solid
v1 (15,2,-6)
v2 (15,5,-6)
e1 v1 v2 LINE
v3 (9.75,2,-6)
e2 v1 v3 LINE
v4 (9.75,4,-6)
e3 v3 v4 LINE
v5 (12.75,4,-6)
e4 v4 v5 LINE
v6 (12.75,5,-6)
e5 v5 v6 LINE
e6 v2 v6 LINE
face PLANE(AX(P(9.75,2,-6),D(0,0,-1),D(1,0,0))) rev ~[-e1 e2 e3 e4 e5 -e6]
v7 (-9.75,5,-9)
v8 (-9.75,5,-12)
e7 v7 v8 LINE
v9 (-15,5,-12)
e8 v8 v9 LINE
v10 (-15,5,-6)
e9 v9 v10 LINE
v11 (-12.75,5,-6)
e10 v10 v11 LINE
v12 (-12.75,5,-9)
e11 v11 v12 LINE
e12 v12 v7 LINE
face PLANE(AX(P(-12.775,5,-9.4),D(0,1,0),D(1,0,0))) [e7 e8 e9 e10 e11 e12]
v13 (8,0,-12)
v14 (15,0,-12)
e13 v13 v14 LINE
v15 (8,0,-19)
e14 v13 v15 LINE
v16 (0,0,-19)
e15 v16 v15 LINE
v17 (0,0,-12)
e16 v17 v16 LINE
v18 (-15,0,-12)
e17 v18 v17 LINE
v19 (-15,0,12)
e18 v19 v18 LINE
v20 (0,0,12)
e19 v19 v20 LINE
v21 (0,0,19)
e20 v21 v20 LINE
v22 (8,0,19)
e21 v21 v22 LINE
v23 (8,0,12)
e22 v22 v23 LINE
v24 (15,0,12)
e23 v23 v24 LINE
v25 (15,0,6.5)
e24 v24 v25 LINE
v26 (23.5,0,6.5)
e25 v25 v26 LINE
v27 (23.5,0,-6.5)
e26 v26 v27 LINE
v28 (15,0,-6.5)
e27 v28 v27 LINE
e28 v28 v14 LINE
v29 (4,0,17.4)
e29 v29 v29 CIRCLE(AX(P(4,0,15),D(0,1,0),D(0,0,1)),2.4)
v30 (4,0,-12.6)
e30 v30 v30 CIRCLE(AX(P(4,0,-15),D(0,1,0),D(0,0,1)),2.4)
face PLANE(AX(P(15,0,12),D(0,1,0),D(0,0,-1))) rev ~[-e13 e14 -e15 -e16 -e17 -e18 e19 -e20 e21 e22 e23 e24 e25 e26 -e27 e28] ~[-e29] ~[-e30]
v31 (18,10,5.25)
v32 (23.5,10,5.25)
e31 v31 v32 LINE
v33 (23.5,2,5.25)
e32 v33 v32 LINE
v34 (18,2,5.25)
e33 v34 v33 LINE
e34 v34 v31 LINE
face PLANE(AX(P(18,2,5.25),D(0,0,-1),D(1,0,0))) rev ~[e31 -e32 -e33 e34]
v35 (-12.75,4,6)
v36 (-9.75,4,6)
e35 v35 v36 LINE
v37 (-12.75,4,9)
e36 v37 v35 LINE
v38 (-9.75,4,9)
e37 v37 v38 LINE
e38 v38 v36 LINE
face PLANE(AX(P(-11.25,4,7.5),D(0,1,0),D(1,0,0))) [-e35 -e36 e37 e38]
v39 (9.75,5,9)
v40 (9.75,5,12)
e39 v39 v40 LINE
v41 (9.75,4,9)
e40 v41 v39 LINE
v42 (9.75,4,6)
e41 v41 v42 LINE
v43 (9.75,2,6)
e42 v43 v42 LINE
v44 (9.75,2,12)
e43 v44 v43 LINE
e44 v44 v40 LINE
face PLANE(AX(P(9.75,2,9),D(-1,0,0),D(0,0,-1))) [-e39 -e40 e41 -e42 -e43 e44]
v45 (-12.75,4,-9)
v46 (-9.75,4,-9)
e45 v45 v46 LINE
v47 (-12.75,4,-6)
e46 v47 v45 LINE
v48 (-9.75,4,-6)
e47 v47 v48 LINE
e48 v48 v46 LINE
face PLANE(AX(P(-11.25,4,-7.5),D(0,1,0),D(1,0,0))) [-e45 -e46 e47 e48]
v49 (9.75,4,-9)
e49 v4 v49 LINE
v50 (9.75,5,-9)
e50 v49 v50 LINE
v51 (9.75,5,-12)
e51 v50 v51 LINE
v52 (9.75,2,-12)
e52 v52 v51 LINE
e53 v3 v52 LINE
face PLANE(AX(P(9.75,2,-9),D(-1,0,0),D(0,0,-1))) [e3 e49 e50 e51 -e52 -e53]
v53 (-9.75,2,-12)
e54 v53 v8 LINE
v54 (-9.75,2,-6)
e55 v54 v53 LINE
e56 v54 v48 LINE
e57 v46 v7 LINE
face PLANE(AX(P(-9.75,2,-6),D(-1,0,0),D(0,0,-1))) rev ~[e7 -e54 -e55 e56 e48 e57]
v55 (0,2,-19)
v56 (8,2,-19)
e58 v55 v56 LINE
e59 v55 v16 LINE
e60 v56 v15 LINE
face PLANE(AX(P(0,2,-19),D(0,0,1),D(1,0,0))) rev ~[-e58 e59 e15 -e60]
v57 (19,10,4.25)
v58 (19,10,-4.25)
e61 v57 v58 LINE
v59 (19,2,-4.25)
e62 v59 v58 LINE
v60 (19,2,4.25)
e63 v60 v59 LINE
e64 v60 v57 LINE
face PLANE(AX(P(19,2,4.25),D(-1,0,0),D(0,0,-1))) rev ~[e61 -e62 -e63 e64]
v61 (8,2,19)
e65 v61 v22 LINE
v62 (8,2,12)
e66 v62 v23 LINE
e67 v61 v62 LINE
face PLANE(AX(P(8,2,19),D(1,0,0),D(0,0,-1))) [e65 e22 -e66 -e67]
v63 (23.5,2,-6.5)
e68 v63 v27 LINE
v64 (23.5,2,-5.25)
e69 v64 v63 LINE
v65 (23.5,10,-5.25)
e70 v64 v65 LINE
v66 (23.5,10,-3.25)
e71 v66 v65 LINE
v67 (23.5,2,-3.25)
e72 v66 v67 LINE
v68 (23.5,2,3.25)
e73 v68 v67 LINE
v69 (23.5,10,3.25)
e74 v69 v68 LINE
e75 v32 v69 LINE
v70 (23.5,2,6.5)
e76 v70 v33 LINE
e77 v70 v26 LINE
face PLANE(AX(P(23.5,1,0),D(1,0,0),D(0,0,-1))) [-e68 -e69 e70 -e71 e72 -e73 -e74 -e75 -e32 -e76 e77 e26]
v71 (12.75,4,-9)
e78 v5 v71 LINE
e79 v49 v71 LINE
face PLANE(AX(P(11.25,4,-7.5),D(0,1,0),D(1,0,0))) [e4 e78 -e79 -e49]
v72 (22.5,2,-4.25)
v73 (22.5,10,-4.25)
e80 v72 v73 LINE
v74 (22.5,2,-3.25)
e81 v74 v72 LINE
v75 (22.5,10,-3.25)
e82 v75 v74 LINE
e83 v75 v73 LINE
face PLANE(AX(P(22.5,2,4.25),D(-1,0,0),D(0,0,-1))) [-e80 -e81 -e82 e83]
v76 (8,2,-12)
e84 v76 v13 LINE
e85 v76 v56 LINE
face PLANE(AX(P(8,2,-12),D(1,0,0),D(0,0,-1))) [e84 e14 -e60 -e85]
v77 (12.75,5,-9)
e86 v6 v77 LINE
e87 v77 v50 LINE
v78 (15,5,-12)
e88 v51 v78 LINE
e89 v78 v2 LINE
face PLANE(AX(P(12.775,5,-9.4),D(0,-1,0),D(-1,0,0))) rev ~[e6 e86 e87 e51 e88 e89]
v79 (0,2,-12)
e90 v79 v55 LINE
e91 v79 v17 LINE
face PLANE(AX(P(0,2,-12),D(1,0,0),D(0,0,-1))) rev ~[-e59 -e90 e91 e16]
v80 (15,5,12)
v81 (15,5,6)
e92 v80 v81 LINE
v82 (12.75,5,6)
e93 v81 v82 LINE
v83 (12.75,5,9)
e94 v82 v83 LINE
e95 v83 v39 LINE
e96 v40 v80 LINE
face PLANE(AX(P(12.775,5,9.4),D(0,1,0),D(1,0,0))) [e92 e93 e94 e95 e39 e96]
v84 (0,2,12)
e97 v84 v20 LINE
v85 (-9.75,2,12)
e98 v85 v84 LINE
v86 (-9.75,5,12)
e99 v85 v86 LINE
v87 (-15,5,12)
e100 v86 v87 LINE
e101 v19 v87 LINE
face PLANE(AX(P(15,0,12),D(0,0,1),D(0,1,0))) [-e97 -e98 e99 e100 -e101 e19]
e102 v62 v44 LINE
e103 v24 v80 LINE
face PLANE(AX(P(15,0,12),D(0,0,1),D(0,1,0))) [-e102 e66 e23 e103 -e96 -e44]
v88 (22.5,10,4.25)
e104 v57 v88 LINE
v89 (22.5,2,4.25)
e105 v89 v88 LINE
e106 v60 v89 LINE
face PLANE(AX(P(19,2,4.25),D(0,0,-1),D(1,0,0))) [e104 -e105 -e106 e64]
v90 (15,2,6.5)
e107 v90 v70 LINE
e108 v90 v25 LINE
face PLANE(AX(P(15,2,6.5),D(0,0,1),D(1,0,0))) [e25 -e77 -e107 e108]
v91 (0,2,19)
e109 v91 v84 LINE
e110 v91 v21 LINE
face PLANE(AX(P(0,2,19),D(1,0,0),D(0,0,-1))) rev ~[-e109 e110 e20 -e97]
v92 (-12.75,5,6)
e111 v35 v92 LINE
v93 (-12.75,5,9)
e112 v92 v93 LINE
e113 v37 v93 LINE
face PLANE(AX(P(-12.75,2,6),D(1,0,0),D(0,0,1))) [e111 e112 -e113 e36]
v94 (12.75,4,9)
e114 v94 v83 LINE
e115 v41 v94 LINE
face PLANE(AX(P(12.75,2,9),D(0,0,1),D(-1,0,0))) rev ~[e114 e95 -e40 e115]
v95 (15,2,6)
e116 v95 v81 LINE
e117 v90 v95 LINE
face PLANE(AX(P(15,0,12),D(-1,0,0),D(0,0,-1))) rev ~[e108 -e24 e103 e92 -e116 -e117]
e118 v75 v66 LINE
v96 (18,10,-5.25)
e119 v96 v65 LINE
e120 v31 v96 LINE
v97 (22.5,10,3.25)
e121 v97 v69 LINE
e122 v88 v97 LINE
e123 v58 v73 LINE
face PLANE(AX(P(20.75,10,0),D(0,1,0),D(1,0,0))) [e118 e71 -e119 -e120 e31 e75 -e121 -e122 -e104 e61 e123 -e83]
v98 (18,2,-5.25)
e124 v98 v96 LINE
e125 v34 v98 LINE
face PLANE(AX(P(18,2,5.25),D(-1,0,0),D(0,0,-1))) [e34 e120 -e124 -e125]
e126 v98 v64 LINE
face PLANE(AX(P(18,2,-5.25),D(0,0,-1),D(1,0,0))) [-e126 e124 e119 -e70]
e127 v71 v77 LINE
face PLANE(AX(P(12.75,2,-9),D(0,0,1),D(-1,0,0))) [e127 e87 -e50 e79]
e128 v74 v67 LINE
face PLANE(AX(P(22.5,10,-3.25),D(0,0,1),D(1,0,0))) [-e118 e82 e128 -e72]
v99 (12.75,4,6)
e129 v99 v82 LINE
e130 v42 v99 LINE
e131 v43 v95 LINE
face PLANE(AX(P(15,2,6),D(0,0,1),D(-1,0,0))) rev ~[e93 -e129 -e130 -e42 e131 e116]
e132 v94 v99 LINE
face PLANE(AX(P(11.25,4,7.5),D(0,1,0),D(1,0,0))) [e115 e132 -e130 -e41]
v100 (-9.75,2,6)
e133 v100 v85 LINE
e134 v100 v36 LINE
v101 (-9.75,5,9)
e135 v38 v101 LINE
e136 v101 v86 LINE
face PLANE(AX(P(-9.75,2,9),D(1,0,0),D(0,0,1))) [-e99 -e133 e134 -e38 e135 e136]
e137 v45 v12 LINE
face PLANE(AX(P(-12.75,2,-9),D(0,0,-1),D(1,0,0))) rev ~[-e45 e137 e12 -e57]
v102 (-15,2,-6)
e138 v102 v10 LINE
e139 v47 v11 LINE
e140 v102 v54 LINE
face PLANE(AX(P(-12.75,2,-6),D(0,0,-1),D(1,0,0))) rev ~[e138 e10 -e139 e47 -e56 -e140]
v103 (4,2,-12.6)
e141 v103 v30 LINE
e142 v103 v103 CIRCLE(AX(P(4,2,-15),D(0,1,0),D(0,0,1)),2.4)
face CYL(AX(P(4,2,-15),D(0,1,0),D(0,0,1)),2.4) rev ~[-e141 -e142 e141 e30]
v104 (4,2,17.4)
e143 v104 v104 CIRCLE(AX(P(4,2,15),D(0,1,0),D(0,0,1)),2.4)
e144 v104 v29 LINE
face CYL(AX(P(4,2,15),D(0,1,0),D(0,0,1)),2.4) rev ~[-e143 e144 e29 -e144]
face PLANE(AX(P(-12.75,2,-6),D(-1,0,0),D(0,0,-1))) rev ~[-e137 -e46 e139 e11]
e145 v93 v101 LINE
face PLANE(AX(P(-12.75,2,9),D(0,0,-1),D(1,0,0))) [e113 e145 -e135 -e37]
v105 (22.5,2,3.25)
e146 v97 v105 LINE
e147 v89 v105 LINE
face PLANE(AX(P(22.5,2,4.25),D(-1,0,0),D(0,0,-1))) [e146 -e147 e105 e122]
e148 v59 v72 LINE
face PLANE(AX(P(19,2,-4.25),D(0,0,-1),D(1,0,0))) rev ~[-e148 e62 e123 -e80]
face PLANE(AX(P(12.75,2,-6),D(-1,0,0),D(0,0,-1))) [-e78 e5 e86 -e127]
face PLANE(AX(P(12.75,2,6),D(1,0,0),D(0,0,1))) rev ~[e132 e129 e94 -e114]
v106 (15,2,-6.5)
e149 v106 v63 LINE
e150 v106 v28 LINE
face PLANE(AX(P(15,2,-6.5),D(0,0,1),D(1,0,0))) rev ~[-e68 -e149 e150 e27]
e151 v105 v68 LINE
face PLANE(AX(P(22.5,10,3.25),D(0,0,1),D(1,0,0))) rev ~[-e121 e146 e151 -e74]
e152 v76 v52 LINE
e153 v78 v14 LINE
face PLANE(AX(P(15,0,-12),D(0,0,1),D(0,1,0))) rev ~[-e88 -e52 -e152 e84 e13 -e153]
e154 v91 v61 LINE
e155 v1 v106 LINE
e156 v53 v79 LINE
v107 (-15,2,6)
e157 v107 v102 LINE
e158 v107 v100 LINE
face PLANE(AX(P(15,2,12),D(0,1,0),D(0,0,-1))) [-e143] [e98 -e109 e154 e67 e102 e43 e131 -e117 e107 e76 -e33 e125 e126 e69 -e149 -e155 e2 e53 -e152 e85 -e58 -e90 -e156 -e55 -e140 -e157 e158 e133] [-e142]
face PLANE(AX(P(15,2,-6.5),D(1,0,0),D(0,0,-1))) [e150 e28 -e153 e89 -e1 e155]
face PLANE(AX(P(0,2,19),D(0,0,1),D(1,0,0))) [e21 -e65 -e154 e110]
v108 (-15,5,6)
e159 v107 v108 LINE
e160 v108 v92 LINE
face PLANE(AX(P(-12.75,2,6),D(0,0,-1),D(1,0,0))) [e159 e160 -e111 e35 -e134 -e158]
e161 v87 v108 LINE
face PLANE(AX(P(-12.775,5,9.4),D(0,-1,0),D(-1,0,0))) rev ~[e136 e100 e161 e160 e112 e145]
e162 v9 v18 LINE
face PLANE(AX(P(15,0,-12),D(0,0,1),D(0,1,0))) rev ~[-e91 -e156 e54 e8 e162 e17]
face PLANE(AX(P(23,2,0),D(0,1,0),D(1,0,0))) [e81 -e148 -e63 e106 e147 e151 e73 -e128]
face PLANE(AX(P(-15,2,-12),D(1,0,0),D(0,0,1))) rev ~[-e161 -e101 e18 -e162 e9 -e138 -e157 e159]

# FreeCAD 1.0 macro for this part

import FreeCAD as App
import Part
import Sketcher
from FreeCAD import Vector

doc = App.newDocument("Part")
body = doc.addObject("PartDesign::Body", "Body")

sketch1 = body.newObject("Sketcher::SketchObject", "Sketch")
sketch1.AttachmentSupport = (doc.getObject("XZ_Plane"), [""])
sketch1.MapMode = "FlatFace"
sketch1.addGeometry(Part.LineSegment(Vector(-15, -12, 0), Vector(-15, 12, 0)), False)
sketch1.addGeometry(Part.LineSegment(Vector(-15, 12, 0), Vector(15, 12, 0)), False)
sketch1.addGeometry(Part.LineSegment(Vector(15, 12, 0), Vector(15, -12, 0)), False)
sketch1.addGeometry(Part.LineSegment(Vector(15, -12, 0), Vector(-15, -12, 0)), False)
sketch1.addConstraint(Sketcher.Constraint("Coincident", 0, 2, 1, 1))
sketch1.addConstraint(Sketcher.Constraint("Coincident", 1, 2, 2, 1))
sketch1.addConstraint(Sketcher.Constraint("Coincident", 2, 2, 3, 1))
sketch1.addConstraint(Sketcher.Constraint("Coincident", 3, 2, 0, 1))
sketch1.addConstraint(Sketcher.Constraint("Vertical", 0))
sketch1.addConstraint(Sketcher.Constraint("Horizontal", 1))
sketch1.addConstraint(Sketcher.Constraint("Vertical", 2))
sketch1.addConstraint(Sketcher.Constraint("Horizontal", 3))
sketch1.addConstraint(Sketcher.Constraint("Symmetric", 0, 2, 2, 2, -1, 1))
sketch1.addConstraint(Sketcher.Constraint("DistanceX", 1, 1, 1, 2, 30.0))
sketch1.addConstraint(Sketcher.Constraint("DistanceY", 0, 1, 0, 2, 24.0))
pad1 = body.newObject("PartDesign::Pad", "Pad")
pad1.Profile = sketch1
pad1.Length = 2
pad1.Reversed = True

sketch2 = body.newObject("Sketcher::SketchObject", "Sketch001")
sketch2.AttachmentSupport = (doc.getObject("XZ_Plane"), [""])
sketch2.MapMode = "FlatFace"
sketch2.AttachmentOffset = App.Placement(Vector(0, 0, -2), App.Rotation())
sketch2.addGeometry(Part.LineSegment(Vector(-15, -12, 0), Vector(-15, -6, 0)), False)
sketch2.addGeometry(Part.LineSegment(Vector(-15, -6, 0), Vector(-12.75, -6, 0)), False)
sketch2.addGeometry(Part.LineSegment(Vector(-12.75, -6, 0), Vector(-12.75, -9, 0)), False)
sketch2.addGeometry(Part.LineSegment(Vector(-12.75, -9, 0), Vector(-9.75, -9, 0)), False)
sketch2.addGeometry(Part.LineSegment(Vector(-9.75, -9, 0), Vector(-9.75, -12, 0)), False)
sketch2.addGeometry(Part.LineSegment(Vector(-9.75, -12, 0), Vector(-15, -12, 0)), False)
sketch2.addGeometry(Part.LineSegment(Vector(15, -12, 0), Vector(9.75, -12, 0)), False)
sketch2.addGeometry(Part.LineSegment(Vector(9.75, -12, 0), Vector(9.75, -9, 0)), False)
sketch2.addGeometry(Part.LineSegment(Vector(9.75, -9, 0), Vector(12.75, -9, 0)), False)
sketch2.addGeometry(Part.LineSegment(Vector(12.75, -9, 0), Vector(12.75, -6, 0)), False)
sketch2.addGeometry(Part.LineSegment(Vector(12.75, -6, 0), Vector(15, -6, 0)), False)
sketch2.addGeometry(Part.LineSegment(Vector(15, -6, 0), Vector(15, -12, 0)), False)
sketch2.addGeometry(Part.LineSegment(Vector(15, 12, 0), Vector(15, 6, 0)), False)
sketch2.addGeometry(Part.LineSegment(Vector(15, 6, 0), Vector(12.75, 6, 0)), False)
sketch2.addGeometry(Part.LineSegment(Vector(12.75, 6, 0), Vector(12.75, 9, 0)), False)
sketch2.addGeometry(Part.LineSegment(Vector(12.75, 9, 0), Vector(9.75, 9, 0)), False)
sketch2.addGeometry(Part.LineSegment(Vector(9.75, 9, 0), Vector(9.75, 12, 0)), False)
sketch2.addGeometry(Part.LineSegment(Vector(9.75, 12, 0), Vector(15, 12, 0)), False)
sketch2.addGeometry(Part.LineSegment(Vector(-15, 12, 0), Vector(-9.75, 12, 0)), False)
sketch2.addGeometry(Part.LineSegment(Vector(-9.75, 12, 0), Vector(-9.75, 9, 0)), False)
sketch2.addGeometry(Part.LineSegment(Vector(-9.75, 9, 0), Vector(-12.75, 9, 0)), False)
sketch2.addGeometry(Part.LineSegment(Vector(-12.75, 9, 0), Vector(-12.75, 6, 0)), False)
sketch2.addGeometry(Part.LineSegment(Vector(-12.75, 6, 0), Vector(-15, 6, 0)), False)
sketch2.addGeometry(Part.LineSegment(Vector(-15, 6, 0), Vector(-15, 12, 0)), False)
sketch2.addConstraint(Sketcher.Constraint("Coincident", 0, 2, 1, 1))
sketch2.addConstraint(Sketcher.Constraint("Coincident", 1, 2, 2, 1))
sketch2.addConstraint(Sketcher.Constraint("Coincident", 2, 2, 3, 1))
sketch2.addConstraint(Sketcher.Constraint("Coincident", 3, 2, 4, 1))
sketch2.addConstraint(Sketcher.Constraint("Coincident", 4, 2, 5, 1))
sketch2.addConstraint(Sketcher.Constraint("Coincident", 5, 2, 0, 1))
sketch2.addConstraint(Sketcher.Constraint("Coincident", 6, 2, 7, 1))
sketch2.addConstraint(Sketcher.Constraint("Coincident", 7, 2, 8, 1))
sketch2.addConstraint(Sketcher.Constraint("Coincident", 8, 2, 9, 1))
sketch2.addConstraint(Sketcher.Constraint("Coincident", 9, 2, 10, 1))
sketch2.addConstraint(Sketcher.Constraint("Coincident", 10, 2, 11, 1))
sketch2.addConstraint(Sketcher.Constraint("Coincident", 11, 2, 6, 1))
sketch2.addConstraint(Sketcher.Constraint("Coincident", 12, 2, 13, 1))
sketch2.addConstraint(Sketcher.Constraint("Coincident", 13, 2, 14, 1))
sketch2.addConstraint(Sketcher.Constraint("Coincident", 14, 2, 15, 1))
sketch2.addConstraint(Sketcher.Constraint("Coincident", 15, 2, 16, 1))
sketch2.addConstraint(Sketcher.Constraint("Coincident", 16, 2, 17, 1))
sketch2.addConstraint(Sketcher.Constraint("Coincident", 17, 2, 12, 1))
sketch2.addConstraint(Sketcher.Constraint("Coincident", 18, 2, 19, 1))
sketch2.addConstraint(Sketcher.Constraint("Coincident", 19, 2, 20, 1))
sketch2.addConstraint(Sketcher.Constraint("Coincident", 20, 2, 21, 1))
sketch2.addConstraint(Sketcher.Constraint("Coincident", 21, 2, 22, 1))
sketch2.addConstraint(Sketcher.Constraint("Coincident", 22, 2, 23, 1))
sketch2.addConstraint(Sketcher.Constraint("Coincident", 23, 2, 18, 1))
sketch2.addConstraint(Sketcher.Constraint("Vertical", 0))
sketch2.addConstraint(Sketcher.Constraint("Horizontal", 1))
sketch2.addConstraint(Sketcher.Constraint("Vertical", 2))
sketch2.addConstraint(Sketcher.Constraint("Horizontal", 3))
sketch2.addConstraint(Sketcher.Constraint("Vertical", 4))
sketch2.addConstraint(Sketcher.Constraint("Horizontal", 5))
sketch2.addConstraint(Sketcher.Constraint("Horizontal", 6))
sketch2.addConstraint(Sketcher.Constraint("Vertical", 7))
sketch2.addConstraint(Sketcher.Constraint("Horizontal", 8))
sketch2.addConstraint(Sketcher.Constraint("Vertical", 9))
sketch2.addConstraint(Sketcher.Constraint("Horizontal", 10))
sketch2.addConstraint(Sketcher.Constraint("Vertical", 11))
sketch2.addConstraint(Sketcher.Constraint("Vertical", 12))
sketch2.addConstraint(Sketcher.Constraint("Horizontal", 13))
sketch2.addConstraint(Sketcher.Constraint("Vertical", 14))
sketch2.addConstraint(Sketcher.Constraint("Horizontal", 15))
sketch2.addConstraint(Sketcher.Constraint("Vertical", 16))
sketch2.addConstraint(Sketcher.Constraint("Horizontal", 17))
sketch2.addConstraint(Sketcher.Constraint("Horizontal", 18))
sketch2.addConstraint(Sketcher.Constraint("Vertical", 19))
sketch2.addConstraint(Sketcher.Constraint("Horizontal", 20))
sketch2.addConstraint(Sketcher.Constraint("Vertical", 21))
sketch2.addConstraint(Sketcher.Constraint("Horizontal", 22))
sketch2.addConstraint(Sketcher.Constraint("Vertical", 23))
sketch2.addConstraint(Sketcher.Constraint("Symmetric", 0, 2, 12, 2, -1, 1))
sketch2.addConstraint(Sketcher.Constraint("Symmetric", 2, 2, 14, 2, -1, 1))
sketch2.addConstraint(Sketcher.Constraint("Symmetric", 4, 2, 16, 2, -1, 1))
sketch2.addConstraint(Sketcher.Constraint("Symmetric", 6, 2, 18, 2, -1, 1))
sketch2.addConstraint(Sketcher.Constraint("Symmetric", 8, 2, 20, 2, -1, 1))
sketch2.addConstraint(Sketcher.Constraint("Symmetric", 10, 2, 22, 2, -1, 1))
sketch2.addConstraint(Sketcher.Constraint("Symmetric", 4, 2, 6, 2, -2))
sketch2.addConstraint(Sketcher.Constraint("Symmetric", 2, 2, 8, 2, -2))
sketch2.addConstraint(Sketcher.Constraint("Symmetric", 0, 2, 10, 2, -2))
sketch2.addConstraint(Sketcher.Constraint("Equal", 20, 2))
sketch2.addConstraint(Sketcher.Constraint("Equal", 2, 4))
sketch2.addConstraint(Sketcher.Constraint("DistanceX", 3, 1, 3, 2, 3.0))
sketch2.addConstraint(Sketcher.Constraint("DistanceX", 0, 2, -1, 1, 15.0))
sketch2.addConstraint(Sketcher.Constraint("DistanceY", 0, 2, -1, 1, 6.0))
sketch2.addConstraint(Sketcher.Constraint("DistanceX", 1, 1, 1, 2, 2.25))
pad2 = body.newObject("PartDesign::Pad", "Pad001")
pad2.Profile = sketch2
pad2.Length = 3
pad2.Reversed = True

sketch3 = body.newObject("Sketcher::SketchObject", "Sketch002")
sketch3.AttachmentSupport = (doc.getObject("XZ_Plane"), [""])
sketch3.MapMode = "FlatFace"
sketch3.AttachmentOffset = App.Placement(Vector(0, 0, -2), App.Rotation())
sketch3.addGeometry(Part.LineSegment(Vector(-12.75, -9, 0), Vector(-12.75, -6, 0)), False)
sketch3.addGeometry(Part.LineSegment(Vector(-12.75, -6, 0), Vector(-9.75, -6, 0)), False)
sketch3.addGeometry(Part.LineSegment(Vector(-9.75, -6, 0), Vector(-9.75, -9, 0)), False)
sketch3.addGeometry(Part.LineSegment(Vector(-9.75, -9, 0), Vector(-12.75, -9, 0)), False)
sketch3.addGeometry(Part.LineSegment(Vector(9.75, -9, 0), Vector(9.75, -6, 0)), False)
sketch3.addGeometry(Part.LineSegment(Vector(9.75, -6, 0), Vector(12.75, -6, 0)), False)
sketch3.addGeometry(Part.LineSegment(Vector(12.75, -6, 0), Vector(12.75, -9, 0)), False)
sketch3.addGeometry(Part.LineSegment(Vector(12.75, -9, 0), Vector(9.75, -9, 0)), False)
sketch3.addGeometry(Part.LineSegment(Vector(9.75, 6, 0), Vector(9.75, 9, 0)), False)
sketch3.addGeometry(Part.LineSegment(Vector(9.75, 9, 0), Vector(12.75, 9, 0)), False)
sketch3.addGeometry(Part.LineSegment(Vector(12.75, 9, 0), Vector(12.75, 6, 0)), False)
sketch3.addGeometry(Part.LineSegment(Vector(12.75, 6, 0), Vector(9.75, 6, 0)), False)
sketch3.addGeometry(Part.LineSegment(Vector(-12.75, 6, 0), Vector(-12.75, 9, 0)), False)
sketch3.addGeometry(Part.LineSegment(Vector(-12.75, 9, 0), Vector(-9.75, 9, 0)), False)
sketch3.addGeometry(Part.LineSegment(Vector(-9.75, 9, 0), Vector(-9.75, 6, 0)), False)
sketch3.addGeometry(Part.LineSegment(Vector(-9.75, 6, 0), Vector(-12.75, 6, 0)), False)
sketch3.addConstraint(Sketcher.Constraint("Coincident", 0, 2, 1, 1))
sketch3.addConstraint(Sketcher.Constraint("Coincident", 1, 2, 2, 1))
sketch3.addConstraint(Sketcher.Constraint("Coincident", 2, 2, 3, 1))
sketch3.addConstraint(Sketcher.Constraint("Coincident", 3, 2, 0, 1))
sketch3.addConstraint(Sketcher.Constraint("Coincident", 4, 2, 5, 1))
sketch3.addConstraint(Sketcher.Constraint("Coincident", 5, 2, 6, 1))
sketch3.addConstraint(Sketcher.Constraint("Coincident", 6, 2, 7, 1))
sketch3.addConstraint(Sketcher.Constraint("Coincident", 7, 2, 4, 1))
sketch3.addConstraint(Sketcher.Constraint("Coincident", 8, 2, 9, 1))
sketch3.addConstraint(Sketcher.Constraint("Coincident", 9, 2, 10, 1))
sketch3.addConstraint(Sketcher.Constraint("Coincident", 10, 2, 11, 1))
sketch3.addConstraint(Sketcher.Constraint("Coincident", 11, 2, 8, 1))
sketch3.addConstraint(Sketcher.Constraint("Coincident", 12, 2, 13, 1))
sketch3.addConstraint(Sketcher.Constraint("Coincident", 13, 2, 14, 1))
sketch3.addConstraint(Sketcher.Constraint("Coincident", 14, 2, 15, 1))
sketch3.addConstraint(Sketcher.Constraint("Coincident", 15, 2, 12, 1))
sketch3.addConstraint(Sketcher.Constraint("Vertical", 0))
sketch3.addConstraint(Sketcher.Constraint("Horizontal", 1))
sketch3.addConstraint(Sketcher.Constraint("Vertical", 2))
sketch3.addConstraint(Sketcher.Constraint("Horizontal", 3))
sketch3.addConstraint(Sketcher.Constraint("Vertical", 4))
sketch3.addConstraint(Sketcher.Constraint("Horizontal", 5))
sketch3.addConstraint(Sketcher.Constraint("Vertical", 6))
sketch3.addConstraint(Sketcher.Constraint("Horizontal", 7))
sketch3.addConstraint(Sketcher.Constraint("Vertical", 8))
sketch3.addConstraint(Sketcher.Constraint("Horizontal", 9))
sketch3.addConstraint(Sketcher.Constraint("Vertical", 10))
sketch3.addConstraint(Sketcher.Constraint("Horizontal", 11))
sketch3.addConstraint(Sketcher.Constraint("Vertical", 12))
sketch3.addConstraint(Sketcher.Constraint("Horizontal", 13))
sketch3.addConstraint(Sketcher.Constraint("Vertical", 14))
sketch3.addConstraint(Sketcher.Constraint("Horizontal", 15))
sketch3.addConstraint(Sketcher.Constraint("Symmetric", 2, 2, 8, 2, -1, 1))
sketch3.addConstraint(Sketcher.Constraint("Symmetric", 0, 2, 10, 2, -1, 1))
sketch3.addConstraint(Sketcher.Constraint("Symmetric", 6, 2, 12, 2, -1, 1))
sketch3.addConstraint(Sketcher.Constraint("Symmetric", 4, 2, 14, 2, -1, 1))
sketch3.addConstraint(Sketcher.Constraint("Symmetric", 1, 2, 4, 2, -2))
sketch3.addConstraint(Sketcher.Constraint("Symmetric", 3, 2, 6, 2, -2))
sketch3.addConstraint(Sketcher.Constraint("Equal", 15, 0))
sketch3.addConstraint(Sketcher.Constraint("DistanceX", 1, 1, 1, 2, 3.0))
sketch3.addConstraint(Sketcher.Constraint("DistanceY", 0, 2, -1, 1, 6.0))
sketch3.addConstraint(Sketcher.Constraint("DistanceX", 1, 2, 4, 2, 19.5))
pad3 = body.newObject("PartDesign::Pad", "Pad002")
pad3.Profile = sketch3
pad3.Length = 2
pad3.Reversed = True

sketch4 = body.newObject("Sketcher::SketchObject", "Sketch003")
sketch4.AttachmentSupport = (doc.getObject("YZ_Plane"), [""])
sketch4.MapMode = "FlatFace"
sketch4.AttachmentOffset = App.Placement(Vector(0, 0, 15), App.Rotation())
sketch4.addGeometry(Part.LineSegment(Vector(2, 12, 0), Vector(0, 12, 0)), False)
sketch4.addGeometry(Part.LineSegment(Vector(0, 12, 0), Vector(0, -12, 0)), False)
sketch4.addGeometry(Part.LineSegment(Vector(0, -12, 0), Vector(2, -12, 0)), False)
sketch4.addGeometry(Part.LineSegment(Vector(2, -12, 0), Vector(2, 12, 0)), False)
sketch4.addConstraint(Sketcher.Constraint("Coincident", 0, 2, 1, 1))
sketch4.addConstraint(Sketcher.Constraint("Coincident", 1, 2, 2, 1))
sketch4.addConstraint(Sketcher.Constraint("Coincident", 2, 2, 3, 1))
sketch4.addConstraint(Sketcher.Constraint("Coincident", 3, 2, 0, 1))
sketch4.addConstraint(Sketcher.Constraint("Horizontal", 0))
sketch4.addConstraint(Sketcher.Constraint("Vertical", 1))
sketch4.addConstraint(Sketcher.Constraint("Horizontal", 2))
sketch4.addConstraint(Sketcher.Constraint("Vertical", 3))
sketch4.addConstraint(Sketcher.Constraint("Symmetric", 0, 2, 1, 2, -1, 1))
sketch4.addConstraint(Sketcher.Constraint("DistanceX", 0, 2, 0, 1, 2.0))
sketch4.addConstraint(Sketcher.Constraint("DistanceY", 1, 2, 1, 1, 24.0))
pad4 = body.newObject("PartDesign::Pad", "Pad003")
pad4.Profile = sketch4
pad4.Length = 8.5

sketch5 = body.newObject("Sketcher::SketchObject", "Sketch004")
sketch5.AttachmentSupport = (doc.getObject("XZ_Plane"), [""])
sketch5.MapMode = "FlatFace"
sketch5.AttachmentOffset = App.Placement(Vector(0, 0, -2), App.Rotation())
sketch5.addGeometry(Part.LineSegment(Vector(18, -5.25, 0), Vector(18, 5.25, 0)), False)
sketch5.addGeometry(Part.LineSegment(Vector(18, 5.25, 0), Vector(23.5, 5.25, 0)), False)
sketch5.addGeometry(Part.LineSegment(Vector(23.5, 5.25, 0), Vector(23.5, -5.25, 0)), False)
sketch5.addGeometry(Part.LineSegment(Vector(23.5, -5.25, 0), Vector(18, -5.25, 0)), False)
sketch5.addGeometry(Part.LineSegment(Vector(22.5, 4.25, 0), Vector(19, 4.25, 0)), False)
sketch5.addGeometry(Part.LineSegment(Vector(19, 4.25, 0), Vector(19, -4.25, 0)), False)
sketch5.addGeometry(Part.LineSegment(Vector(19, -4.25, 0), Vector(22.5, -4.25, 0)), False)
sketch5.addGeometry(Part.LineSegment(Vector(22.5, -4.25, 0), Vector(22.5, 4.25, 0)), False)
sketch5.addConstraint(Sketcher.Constraint("Coincident", 0, 2, 1, 1))
sketch5.addConstraint(Sketcher.Constraint("Coincident", 1, 2, 2, 1))
sketch5.addConstraint(Sketcher.Constraint("Coincident", 2, 2, 3, 1))
sketch5.addConstraint(Sketcher.Constraint("Coincident", 3, 2, 0, 1))
sketch5.addConstraint(Sketcher.Constraint("Coincident", 4, 2, 5, 1))
sketch5.addConstraint(Sketcher.Constraint("Coincident", 5, 2, 6, 1))
sketch5.addConstraint(Sketcher.Constraint("Coincident", 6, 2, 7, 1))
sketch5.addConstraint(Sketcher.Constraint("Coincident", 7, 2, 4, 1))
sketch5.addConstraint(Sketcher.Constraint("Vertical", 0))
sketch5.addConstraint(Sketcher.Constraint("Horizontal", 1))
sketch5.addConstraint(Sketcher.Constraint("Vertical", 2))
sketch5.addConstraint(Sketcher.Constraint("Horizontal", 3))
sketch5.addConstraint(Sketcher.Constraint("Horizontal", 4))
sketch5.addConstraint(Sketcher.Constraint("Vertical", 5))
sketch5.addConstraint(Sketcher.Constraint("Horizontal", 6))
sketch5.addConstraint(Sketcher.Constraint("Vertical", 7))
sketch5.addConstraint(Sketcher.Constraint("DistanceX", 1, 1, 1, 2, 5.5))
sketch5.addConstraint(Sketcher.Constraint("DistanceX", 4, 2, 4, 1, 3.5))
sketch5.addConstraint(Sketcher.Constraint("DistanceY", 0, 1, 0, 2, 10.5))
sketch5.addConstraint(Sketcher.Constraint("DistanceY", 5, 2, 5, 1, 8.5))
sketch5.addConstraint(Sketcher.Constraint("DistanceX", -1, 1, 0, 2, 18.0))
sketch5.addConstraint(Sketcher.Constraint("DistanceX", -1, 1, 4, 2, 19.0))
sketch5.addConstraint(Sketcher.Constraint("DistanceY", 4, 2, 0, 2, 1.0))
sketch5.addConstraint(Sketcher.Constraint("DistanceY", -1, 1, 0, 2, 5.25))
pad5 = body.newObject("PartDesign::Pad", "Pad004")
pad5.Profile = sketch5
pad5.Length = 8
pad5.Reversed = True

sketch6 = body.newObject("Sketcher::SketchObject", "Sketch005")
sketch6.AttachmentSupport = (doc.getObject("XZ_Plane"), [""])
sketch6.MapMode = "FlatFace"
sketch6.AttachmentOffset = App.Placement(Vector(0, 0, -10), App.Rotation())
sketch6.addGeometry(Part.LineSegment(Vector(22.5, -3.25, 0), Vector(22.5, 3.25, 0)), False)
sketch6.addGeometry(Part.LineSegment(Vector(22.5, 3.25, 0), Vector(23.5, 3.25, 0)), False)
sketch6.addGeometry(Part.LineSegment(Vector(23.5, 3.25, 0), Vector(23.5, -3.25, 0)), False)
sketch6.addGeometry(Part.LineSegment(Vector(23.5, -3.25, 0), Vector(22.5, -3.25, 0)), False)
sketch6.addConstraint(Sketcher.Constraint("Coincident", 0, 2, 1, 1))
sketch6.addConstraint(Sketcher.Constraint("Coincident", 1, 2, 2, 1))
sketch6.addConstraint(Sketcher.Constraint("Coincident", 2, 2, 3, 1))
sketch6.addConstraint(Sketcher.Constraint("Coincident", 3, 2, 0, 1))
sketch6.addConstraint(Sketcher.Constraint("Vertical", 0))
sketch6.addConstraint(Sketcher.Constraint("Horizontal", 1))
sketch6.addConstraint(Sketcher.Constraint("Vertical", 2))
sketch6.addConstraint(Sketcher.Constraint("Horizontal", 3))
sketch6.addConstraint(Sketcher.Constraint("DistanceX", 1, 1, 1, 2, 1.0))
sketch6.addConstraint(Sketcher.Constraint("DistanceY", 0, 1, 0, 2, 6.5))
sketch6.addConstraint(Sketcher.Constraint("DistanceX", -1, 1, 0, 2, 22.5))
sketch6.addConstraint(Sketcher.Constraint("DistanceY", -1, 1, 0, 2, 3.25))
pocket1 = body.newObject("PartDesign::Pocket", "Pocket")
pocket1.Profile = sketch6
pocket1.Length = 8
pocket1.Reversed = True

sketch7 = body.newObject("Sketcher::SketchObject", "Sketch006")
sketch7.AttachmentSupport = (doc.getObject("XZ_Plane"), [""])
sketch7.MapMode = "FlatFace"
sketch7.AttachmentOffset = App.Placement(Vector(0, 0, -2), App.Rotation())
sketch7.addGeometry(Part.LineSegment(Vector(15, -12, 0), Vector(15, -6.5, 0)), False)
sketch7.addGeometry(Part.LineSegment(Vector(15, -6.5, 0), Vector(23.5, -6.5, 0)), False)
sketch7.addGeometry(Part.LineSegment(Vector(23.5, -6.5, 0), Vector(23.5, -12, 0)), False)
sketch7.addGeometry(Part.LineSegment(Vector(23.5, -12, 0), Vector(15, -12, 0)), False)
sketch7.addGeometry(Part.LineSegment(Vector(15, 6.5, 0), Vector(15, 12, 0)), False)
sketch7.addGeometry(Part.LineSegment(Vector(15, 12, 0), Vector(23.5, 12, 0)), False)
sketch7.addGeometry(Part.LineSegment(Vector(23.5, 12, 0), Vector(23.5, 6.5, 0)), False)
sketch7.addGeometry(Part.LineSegment(Vector(23.5, 6.5, 0), Vector(15, 6.5, 0)), False)
sketch7.addConstraint(Sketcher.Constraint("Coincident", 0, 2, 1, 1))
sketch7.addConstraint(Sketcher.Constraint("Coincident", 1, 2, 2, 1))
sketch7.addConstraint(Sketcher.Constraint("Coincident", 2, 2, 3, 1))
sketch7.addConstraint(Sketcher.Constraint("Coincident", 3, 2, 0, 1))
sketch7.addConstraint(Sketcher.Constraint("Coincident", 4, 2, 5, 1))
sketch7.addConstraint(Sketcher.Constraint("Coincident", 5, 2, 6, 1))
sketch7.addConstraint(Sketcher.Constraint("Coincident", 6, 2, 7, 1))
sketch7.addConstraint(Sketcher.Constraint("Coincident", 7, 2, 4, 1))
sketch7.addConstraint(Sketcher.Constraint("Vertical", 0))
sketch7.addConstraint(Sketcher.Constraint("Horizontal", 1))
sketch7.addConstraint(Sketcher.Constraint("Vertical", 2))
sketch7.addConstraint(Sketcher.Constraint("Horizontal", 3))
sketch7.addConstraint(Sketcher.Constraint("Vertical", 4))
sketch7.addConstraint(Sketcher.Constraint("Horizontal", 5))
sketch7.addConstraint(Sketcher.Constraint("Vertical", 6))
sketch7.addConstraint(Sketcher.Constraint("Horizontal", 7))
sketch7.addConstraint(Sketcher.Constraint("Symmetric", 3, 2, 4, 2, -1))
sketch7.addConstraint(Sketcher.Constraint("Symmetric", 1, 2, 6, 2, -1))
sketch7.addConstraint(Sketcher.Constraint("DistanceX", 1, 1, 1, 2, 8.5))
sketch7.addConstraint(Sketcher.Constraint("DistanceY", 0, 1, 0, 2, 5.5))
sketch7.addConstraint(Sketcher.Constraint("DistanceX", -1, 1, 0, 2, 15.0))
sketch7.addConstraint(Sketcher.Constraint("DistanceY", 2, 2, -1, 1, 12.0))
pocket2 = body.newObject("PartDesign::Pocket", "Pocket001")
pocket2.Profile = sketch7
pocket2.Length = 9
pocket2.Reversed = True

sketch8 = body.newObject("Sketcher::SketchObject", "Sketch007")
sketch8.AttachmentSupport = (doc.getObject("XZ_Plane"), [""])
sketch8.MapMode = "FlatFace"
sketch8.AttachmentOffset = App.Placement(Vector(0, 0, -2), App.Rotation())
sketch8.addGeometry(Part.LineSegment(Vector(0, 12, 0), Vector(0, 19, 0)), False)
sketch8.addGeometry(Part.LineSegment(Vector(0, 19, 0), Vector(8, 19, 0)), False)
sketch8.addGeometry(Part.LineSegment(Vector(8, 19, 0), Vector(8, 12, 0)), False)
sketch8.addGeometry(Part.LineSegment(Vector(8, 12, 0), Vector(0, 12, 0)), False)
sketch8.addGeometry(Part.Circle(Vector(4, 15, 0), Vector(0, 0, 1), 2.4), False)
sketch8.addGeometry(Part.LineSegment(Vector(0, -19, 0), Vector(0, -12, 0)), False)
sketch8.addGeometry(Part.LineSegment(Vector(0, -12, 0), Vector(8, -12, 0)), False)
sketch8.addGeometry(Part.LineSegment(Vector(8, -12, 0), Vector(8, -19, 0)), False)
sketch8.addGeometry(Part.LineSegment(Vector(8, -19, 0), Vector(0, -19, 0)), False)
sketch8.addGeometry(Part.Circle(Vector(4, -15, 0), Vector(0, 0, 1), 2.4), False)
sketch8.addConstraint(Sketcher.Constraint("Coincident", 0, 2, 1, 1))
sketch8.addConstraint(Sketcher.Constraint("Coincident", 1, 2, 2, 1))
sketch8.addConstraint(Sketcher.Constraint("Coincident", 2, 2, 3, 1))
sketch8.addConstraint(Sketcher.Constraint("Coincident", 3, 2, 0, 1))
sketch8.addConstraint(Sketcher.Constraint("Coincident", 5, 2, 6, 1))
sketch8.addConstraint(Sketcher.Constraint("Coincident", 6, 2, 7, 1))
sketch8.addConstraint(Sketcher.Constraint("Coincident", 7, 2, 8, 1))
sketch8.addConstraint(Sketcher.Constraint("Coincident", 8, 2, 5, 1))
sketch8.addConstraint(Sketcher.Constraint("Vertical", 0))
sketch8.addConstraint(Sketcher.Constraint("Horizontal", 1))
sketch8.addConstraint(Sketcher.Constraint("Vertical", 2))
sketch8.addConstraint(Sketcher.Constraint("Horizontal", 3))
sketch8.addConstraint(Sketcher.Constraint("Vertical", 5))
sketch8.addConstraint(Sketcher.Constraint("Horizontal", 6))
sketch8.addConstraint(Sketcher.Constraint("Vertical", 7))
sketch8.addConstraint(Sketcher.Constraint("Horizontal", 8))
sketch8.addConstraint(Sketcher.Constraint("Equal", 4, 9))
sketch8.addConstraint(Sketcher.Constraint("Symmetric", 3, 2, 5, 2, -1, 1))
sketch8.addConstraint(Sketcher.Constraint("Symmetric", 4, 3, 9, 3, -1))
sketch8.addConstraint(Sketcher.Constraint("Symmetric", 1, 2, 7, 2, -1))
sketch8.addConstraint(Sketcher.Constraint("PointOnObject", 0, 2, -2))
sketch8.addConstraint(Sketcher.Constraint("Diameter", 4, 4.8))
sketch8.addConstraint(Sketcher.Constraint("DistanceX", 1, 1, 1, 2, 8.0))
sketch8.addConstraint(Sketcher.Constraint("DistanceY", 0, 1, 0, 2, 7.0))
sketch8.addConstraint(Sketcher.Constraint("DistanceX", -1, 1, 4, 3, 4.0))
sketch8.addConstraint(Sketcher.Constraint("DistanceY", -1, 1, 4, 3, 15.0))
sketch8.addConstraint(Sketcher.Constraint("DistanceY", -1, 1, 0, 2, 19.0))
pad6 = body.newObject("PartDesign::Pad", "Pad005")
pad6.Profile = sketch8
pad6.Length = 2

doc.recompute()
